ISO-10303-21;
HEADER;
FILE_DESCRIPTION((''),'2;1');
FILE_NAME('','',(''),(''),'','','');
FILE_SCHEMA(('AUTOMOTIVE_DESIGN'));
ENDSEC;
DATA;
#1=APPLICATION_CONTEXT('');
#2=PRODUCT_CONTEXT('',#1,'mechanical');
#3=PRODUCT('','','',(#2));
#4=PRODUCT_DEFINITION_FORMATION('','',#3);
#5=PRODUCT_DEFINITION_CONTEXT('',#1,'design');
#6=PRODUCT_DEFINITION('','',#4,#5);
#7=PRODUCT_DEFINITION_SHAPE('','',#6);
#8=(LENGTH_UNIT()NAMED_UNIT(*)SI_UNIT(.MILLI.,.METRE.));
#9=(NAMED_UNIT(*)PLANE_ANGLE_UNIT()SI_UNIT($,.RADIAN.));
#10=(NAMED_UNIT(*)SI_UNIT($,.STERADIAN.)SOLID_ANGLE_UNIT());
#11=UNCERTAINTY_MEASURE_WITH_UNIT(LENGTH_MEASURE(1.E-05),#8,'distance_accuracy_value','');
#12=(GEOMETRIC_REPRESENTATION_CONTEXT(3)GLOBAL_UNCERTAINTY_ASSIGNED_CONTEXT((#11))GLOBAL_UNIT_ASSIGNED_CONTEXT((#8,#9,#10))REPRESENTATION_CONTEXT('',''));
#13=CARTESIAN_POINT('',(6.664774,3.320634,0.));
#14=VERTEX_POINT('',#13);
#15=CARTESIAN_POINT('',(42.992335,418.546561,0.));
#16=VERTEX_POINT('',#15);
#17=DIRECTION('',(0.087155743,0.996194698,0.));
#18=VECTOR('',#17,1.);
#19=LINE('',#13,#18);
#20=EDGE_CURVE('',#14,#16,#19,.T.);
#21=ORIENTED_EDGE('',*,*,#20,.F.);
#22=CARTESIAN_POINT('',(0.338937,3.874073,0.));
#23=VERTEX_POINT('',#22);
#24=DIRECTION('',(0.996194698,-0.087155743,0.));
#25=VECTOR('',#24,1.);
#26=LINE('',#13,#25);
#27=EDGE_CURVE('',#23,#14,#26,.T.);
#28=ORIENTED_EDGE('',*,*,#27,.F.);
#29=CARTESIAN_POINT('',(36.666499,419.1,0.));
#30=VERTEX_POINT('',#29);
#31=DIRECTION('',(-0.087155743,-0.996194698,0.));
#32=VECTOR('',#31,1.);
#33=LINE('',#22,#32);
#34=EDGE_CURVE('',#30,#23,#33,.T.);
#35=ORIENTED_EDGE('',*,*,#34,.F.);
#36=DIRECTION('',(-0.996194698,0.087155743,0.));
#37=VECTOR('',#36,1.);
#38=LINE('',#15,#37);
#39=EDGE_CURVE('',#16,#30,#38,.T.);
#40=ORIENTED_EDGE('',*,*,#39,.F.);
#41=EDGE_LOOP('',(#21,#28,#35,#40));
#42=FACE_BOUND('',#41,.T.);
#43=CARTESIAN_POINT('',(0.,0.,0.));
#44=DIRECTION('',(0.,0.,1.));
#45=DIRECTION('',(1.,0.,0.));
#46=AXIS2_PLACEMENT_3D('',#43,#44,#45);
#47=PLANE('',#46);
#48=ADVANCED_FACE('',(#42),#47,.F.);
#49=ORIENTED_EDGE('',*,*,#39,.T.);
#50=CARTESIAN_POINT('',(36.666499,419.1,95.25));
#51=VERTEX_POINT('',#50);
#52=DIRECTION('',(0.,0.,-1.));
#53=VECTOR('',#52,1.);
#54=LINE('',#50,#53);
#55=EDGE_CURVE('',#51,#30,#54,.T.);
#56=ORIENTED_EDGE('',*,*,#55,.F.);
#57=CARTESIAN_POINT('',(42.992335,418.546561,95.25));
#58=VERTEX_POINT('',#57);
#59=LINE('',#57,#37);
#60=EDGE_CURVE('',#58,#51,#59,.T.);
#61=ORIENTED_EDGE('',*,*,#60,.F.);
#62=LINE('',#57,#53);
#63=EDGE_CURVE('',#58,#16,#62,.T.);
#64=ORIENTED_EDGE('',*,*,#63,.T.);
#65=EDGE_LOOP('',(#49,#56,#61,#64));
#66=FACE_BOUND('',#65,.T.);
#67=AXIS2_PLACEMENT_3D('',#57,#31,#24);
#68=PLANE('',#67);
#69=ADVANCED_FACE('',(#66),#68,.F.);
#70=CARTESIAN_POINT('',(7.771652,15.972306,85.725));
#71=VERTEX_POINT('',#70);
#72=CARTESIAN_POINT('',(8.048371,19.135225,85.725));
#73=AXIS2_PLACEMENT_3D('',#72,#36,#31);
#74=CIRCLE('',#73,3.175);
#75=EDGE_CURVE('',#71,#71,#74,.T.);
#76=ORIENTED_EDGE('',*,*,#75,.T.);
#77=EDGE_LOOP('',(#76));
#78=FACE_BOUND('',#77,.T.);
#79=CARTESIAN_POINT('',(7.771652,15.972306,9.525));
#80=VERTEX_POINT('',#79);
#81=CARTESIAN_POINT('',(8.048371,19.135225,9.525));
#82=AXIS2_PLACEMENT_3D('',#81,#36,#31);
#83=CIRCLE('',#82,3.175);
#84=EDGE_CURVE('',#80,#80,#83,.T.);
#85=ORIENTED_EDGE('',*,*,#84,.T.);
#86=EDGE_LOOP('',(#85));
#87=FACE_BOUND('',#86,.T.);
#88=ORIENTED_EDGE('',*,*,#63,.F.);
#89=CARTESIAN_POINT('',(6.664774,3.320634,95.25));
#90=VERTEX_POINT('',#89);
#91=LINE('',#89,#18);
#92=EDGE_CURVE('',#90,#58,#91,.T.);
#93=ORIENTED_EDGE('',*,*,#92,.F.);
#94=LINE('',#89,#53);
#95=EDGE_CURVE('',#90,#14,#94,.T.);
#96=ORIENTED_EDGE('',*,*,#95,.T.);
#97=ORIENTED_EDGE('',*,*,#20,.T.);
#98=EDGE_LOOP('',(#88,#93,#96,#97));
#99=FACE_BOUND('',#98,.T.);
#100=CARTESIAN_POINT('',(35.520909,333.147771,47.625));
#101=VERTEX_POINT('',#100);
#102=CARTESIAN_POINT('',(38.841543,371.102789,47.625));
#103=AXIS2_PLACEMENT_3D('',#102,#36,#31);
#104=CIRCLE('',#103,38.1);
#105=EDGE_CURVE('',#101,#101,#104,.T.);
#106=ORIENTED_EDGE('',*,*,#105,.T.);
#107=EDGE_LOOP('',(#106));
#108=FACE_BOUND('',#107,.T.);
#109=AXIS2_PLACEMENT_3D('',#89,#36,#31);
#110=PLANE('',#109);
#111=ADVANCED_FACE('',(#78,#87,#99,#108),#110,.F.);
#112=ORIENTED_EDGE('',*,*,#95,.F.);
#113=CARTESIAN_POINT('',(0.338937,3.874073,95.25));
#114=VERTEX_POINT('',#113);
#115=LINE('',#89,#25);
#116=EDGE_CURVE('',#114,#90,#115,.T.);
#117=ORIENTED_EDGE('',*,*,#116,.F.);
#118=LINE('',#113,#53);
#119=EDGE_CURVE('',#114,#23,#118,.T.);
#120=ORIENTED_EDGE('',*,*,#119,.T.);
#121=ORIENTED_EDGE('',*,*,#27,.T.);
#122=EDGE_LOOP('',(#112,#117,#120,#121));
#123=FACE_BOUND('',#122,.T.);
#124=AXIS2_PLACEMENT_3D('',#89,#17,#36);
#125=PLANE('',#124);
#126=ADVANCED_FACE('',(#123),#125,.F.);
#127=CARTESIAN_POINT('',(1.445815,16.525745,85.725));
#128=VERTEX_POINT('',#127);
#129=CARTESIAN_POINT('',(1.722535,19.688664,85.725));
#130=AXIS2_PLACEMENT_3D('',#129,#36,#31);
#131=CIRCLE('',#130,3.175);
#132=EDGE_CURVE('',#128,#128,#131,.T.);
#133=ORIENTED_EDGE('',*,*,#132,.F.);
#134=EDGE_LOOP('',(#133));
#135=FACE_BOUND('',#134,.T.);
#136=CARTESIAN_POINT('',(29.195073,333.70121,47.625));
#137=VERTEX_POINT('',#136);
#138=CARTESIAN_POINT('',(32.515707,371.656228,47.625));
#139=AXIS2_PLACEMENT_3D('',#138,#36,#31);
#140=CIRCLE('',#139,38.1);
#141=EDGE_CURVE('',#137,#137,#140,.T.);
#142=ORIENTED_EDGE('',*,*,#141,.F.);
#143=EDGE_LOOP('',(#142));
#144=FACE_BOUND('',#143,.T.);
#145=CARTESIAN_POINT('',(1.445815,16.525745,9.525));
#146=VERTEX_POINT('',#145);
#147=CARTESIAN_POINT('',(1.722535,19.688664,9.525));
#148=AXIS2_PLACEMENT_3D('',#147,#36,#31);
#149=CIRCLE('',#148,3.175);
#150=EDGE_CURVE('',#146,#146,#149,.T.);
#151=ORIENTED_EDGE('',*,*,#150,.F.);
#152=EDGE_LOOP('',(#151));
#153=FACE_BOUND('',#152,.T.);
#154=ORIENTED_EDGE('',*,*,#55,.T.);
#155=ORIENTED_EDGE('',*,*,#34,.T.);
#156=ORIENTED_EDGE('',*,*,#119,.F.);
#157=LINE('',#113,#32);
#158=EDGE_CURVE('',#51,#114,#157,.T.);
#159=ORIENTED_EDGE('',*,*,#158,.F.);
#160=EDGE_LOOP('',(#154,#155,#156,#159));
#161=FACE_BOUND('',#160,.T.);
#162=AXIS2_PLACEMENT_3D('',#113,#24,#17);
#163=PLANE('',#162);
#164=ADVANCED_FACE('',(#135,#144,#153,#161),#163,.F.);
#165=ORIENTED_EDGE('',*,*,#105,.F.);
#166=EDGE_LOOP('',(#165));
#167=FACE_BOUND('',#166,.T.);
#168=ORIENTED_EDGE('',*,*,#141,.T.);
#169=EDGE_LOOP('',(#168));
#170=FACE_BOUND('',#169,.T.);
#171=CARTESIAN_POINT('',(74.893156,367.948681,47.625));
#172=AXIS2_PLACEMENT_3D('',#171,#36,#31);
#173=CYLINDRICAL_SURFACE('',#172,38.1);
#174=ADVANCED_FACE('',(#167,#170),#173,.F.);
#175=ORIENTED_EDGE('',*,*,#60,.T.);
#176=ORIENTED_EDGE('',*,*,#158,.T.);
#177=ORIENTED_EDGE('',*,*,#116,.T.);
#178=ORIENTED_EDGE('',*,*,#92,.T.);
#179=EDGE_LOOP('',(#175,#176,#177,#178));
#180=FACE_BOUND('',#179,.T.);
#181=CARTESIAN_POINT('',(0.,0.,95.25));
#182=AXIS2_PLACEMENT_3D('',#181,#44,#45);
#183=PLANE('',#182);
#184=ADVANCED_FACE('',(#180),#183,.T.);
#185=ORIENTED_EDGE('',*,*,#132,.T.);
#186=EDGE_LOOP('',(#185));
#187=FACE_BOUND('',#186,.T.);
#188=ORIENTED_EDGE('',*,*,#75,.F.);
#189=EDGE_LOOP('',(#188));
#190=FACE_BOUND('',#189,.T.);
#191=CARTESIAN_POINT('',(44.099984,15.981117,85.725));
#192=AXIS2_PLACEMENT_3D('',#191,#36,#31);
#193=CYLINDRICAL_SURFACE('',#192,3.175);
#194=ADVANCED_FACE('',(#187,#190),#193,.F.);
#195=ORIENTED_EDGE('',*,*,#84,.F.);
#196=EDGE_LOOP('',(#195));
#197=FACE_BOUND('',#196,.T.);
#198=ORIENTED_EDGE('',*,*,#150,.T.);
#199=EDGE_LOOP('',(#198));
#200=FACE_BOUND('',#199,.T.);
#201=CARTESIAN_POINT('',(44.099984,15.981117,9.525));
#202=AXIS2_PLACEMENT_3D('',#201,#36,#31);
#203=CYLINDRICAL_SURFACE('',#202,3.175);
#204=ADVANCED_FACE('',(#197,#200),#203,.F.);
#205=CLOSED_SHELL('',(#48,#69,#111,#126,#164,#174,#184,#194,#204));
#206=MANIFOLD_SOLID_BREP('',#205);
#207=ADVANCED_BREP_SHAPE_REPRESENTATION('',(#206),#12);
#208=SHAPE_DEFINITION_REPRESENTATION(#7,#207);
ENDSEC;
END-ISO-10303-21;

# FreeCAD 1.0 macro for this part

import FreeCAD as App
import Part
import Sketcher
from FreeCAD import Vector
Q = App.Units.Quantity

doc = App.newDocument("Part")
body = doc.addObject("PartDesign::Body", "Body")

# Sketch on XY plane
sketch1 = body.newObject("Sketcher::SketchObject", "Sketch")
sketch1.AttachmentSupport = (doc.getObject("XY_Plane"), [""])
sketch1.MapMode = "FlatFace"
sketch1.addGeometry([
    Part.LineSegment(Vector(0.338937, 3.874073, 0), Vector(6.664774, 3.320634, 0)),
    Part.LineSegment(Vector(6.664774, 3.320634, 0), Vector(42.992335, 418.546561, 0)),
    Part.LineSegment(Vector(42.992335, 418.546561, 0), Vector(36.666499, 419.1, 0)),
    Part.LineSegment(Vector(36.666499, 419.1, 0), Vector(0.338937, 3.874073, 0)),
], False)
sketch1.addConstraint([
    Sketcher.Constraint("Coincident", 0, 2, 1, 1),
    Sketcher.Constraint("Coincident", 1, 2, 2, 1),
    Sketcher.Constraint("Coincident", 2, 2, 3, 1),
    Sketcher.Constraint("Coincident", 3, 2, 0, 1),
    Sketcher.Constraint("Perpendicular", 0, 1),
    Sketcher.Constraint("Perpendicular", 1, 2),
    Sketcher.Constraint("Perpendicular", 2, 3),
    Sketcher.Constraint("Angle", 0, Q("-5 deg")),
    Sketcher.Constraint("DistanceY", -1, 1, 2, 2, Q("16.5 in")),
    Sketcher.Constraint("Distance", 0, Q("0.25 in")),
    Sketcher.Constraint("DistanceX", -1, 1, 2, 2, Q("36.666499 mm")),
    Sketcher.Constraint("DistanceX", 0, 2, 1, 2, Q("36.327561 mm")),
])
pad1 = body.newObject("PartDesign::Pad", "Pad")
pad1.Profile = sketch1
pad1.Length = Q("3.75 in")

# Sketch on an angled plane
sketch2 = body.newObject("Sketcher::SketchObject", "Sketch001")
sketch2.Placement = App.Placement(Vector(0, 0, 0), App.Rotation(Vector(0, 0, 1), Vector(0.087155743, 0.996194698, 0), Vector(-0.996194698, 0.087155743, 0), "ZXY"))
sketch2.addGeometry(Part.Circle(Vector(47.625, 373.075894, 0), Vector(0, 0, 1), 38.1), False)
sketch2.addConstraint([
    Sketcher.Constraint("Diameter", 0, Q("3 in")),
    Sketcher.Constraint("DistanceX", -1, 1, 0, 3, Q("1.875 in")),
    Sketcher.Constraint("DistanceY", -1, 1, 0, 3, Q("373.075894 mm")),
])
pocket1 = body.newObject("PartDesign::Pocket", "Pocket")
pocket1.Profile = sketch2
pocket1.Type = "ThroughAll"

# Sketch on an angled plane
sketch3 = body.newObject("Sketcher::SketchObject", "Sketch002")
sketch3.Placement = App.Placement(Vector(0, 0, 0), App.Rotation(Vector(0, 0, 1), Vector(0.087155743, 0.996194698, 0), Vector(-0.996194698, 0.087155743, 0), "ZXY"))
sketch3.addGeometry([
    Part.Circle(Vector(9.525, 19.763871, 0), Vector(0, 0, 1), 3.175),
    Part.Circle(Vector(85.725, 19.763871, 0), Vector(0, 0, 1), 3.175),
], False)
sketch3.addConstraint([
    Sketcher.Constraint("Equal", 0, 1),
    Sketcher.Constraint("Horizontal", 0, 3, 1, 3),
    Sketcher.Constraint("Diameter", 0, Q("0.25 in")),
    Sketcher.Constraint("DistanceX", 0, 3, 1, 3, Q("3 in")),
    Sketcher.Constraint("DistanceX", -1, 1, 0, 3, Q("0.375 in")),
    Sketcher.Constraint("DistanceY", -1, 1, 0, 3, Q("19.763871 mm")),
])
pocket2 = body.newObject("PartDesign::Pocket", "Pocket001")
pocket2.Profile = sketch3
pocket2.Type = "ThroughAll"

doc.recompute()
